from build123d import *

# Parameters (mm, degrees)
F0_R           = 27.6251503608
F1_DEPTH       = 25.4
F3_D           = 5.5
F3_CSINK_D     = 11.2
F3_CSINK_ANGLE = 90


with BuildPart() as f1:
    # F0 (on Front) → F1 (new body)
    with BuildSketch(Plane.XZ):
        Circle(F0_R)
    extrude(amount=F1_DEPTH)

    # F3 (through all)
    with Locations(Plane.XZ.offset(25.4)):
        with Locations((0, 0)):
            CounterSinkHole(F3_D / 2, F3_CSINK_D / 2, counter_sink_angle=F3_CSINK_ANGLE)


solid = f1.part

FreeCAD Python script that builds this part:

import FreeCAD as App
import Part
import Sketcher

V = App.Vector

doc = App.newDocument("Part")
body = doc.addObject("PartDesign::Body", "Body")

sketch1 = body.newObject("Sketcher::SketchObject", "Sketch")
sketch1.AttachmentSupport = (doc.getObject("XZ_Plane"), [""])
sketch1.MapMode = "FlatFace"
sketch1.addGeometry(Part.Circle(V(0, 0, 0), V(0, 0, 1), 28), False)
sketch1.addConstraint(Sketcher.Constraint("Coincident", 0, 3, -1, 1))
sketch1.addConstraint(Sketcher.Constraint("Diameter", 0, 55.250301))
pad1 = body.newObject("PartDesign::Pad", "Pad")
pad1.Profile = sketch1
pad1.Length = 25.4

sketch2 = body.newObject("Sketcher::SketchObject", "Sketch001")
sketch2.AttachmentSupport = (doc.getObject("XZ_Plane"), [""])
sketch2.MapMode = "FlatFace"
sketch2.AttachmentOffset = App.Placement(V(0, 0, 25.4), App.Rotation())
sketch2.addGeometry(Part.Circle(V(0, 0, 0), V(0, 0, 1), 2.8), False)
sketch2.addConstraint(Sketcher.Constraint("Coincident", 0, 3, -1, 1))
sketch2.addConstraint(Sketcher.Constraint("Diameter", 0, 5.5))
doc.recompute()
hole = body.newObject("PartDesign::Hole", "Hole")
hole.Profile = sketch2
hole.ThreadType = "None"
hole.Diameter = 5.5
hole.DepthType = "ThroughAll"
hole.HoleCutType = "Countersink"
hole.HoleCutDiameter = 11.2
hole.HoleCutCountersinkAngle = 90

doc.recompute()
